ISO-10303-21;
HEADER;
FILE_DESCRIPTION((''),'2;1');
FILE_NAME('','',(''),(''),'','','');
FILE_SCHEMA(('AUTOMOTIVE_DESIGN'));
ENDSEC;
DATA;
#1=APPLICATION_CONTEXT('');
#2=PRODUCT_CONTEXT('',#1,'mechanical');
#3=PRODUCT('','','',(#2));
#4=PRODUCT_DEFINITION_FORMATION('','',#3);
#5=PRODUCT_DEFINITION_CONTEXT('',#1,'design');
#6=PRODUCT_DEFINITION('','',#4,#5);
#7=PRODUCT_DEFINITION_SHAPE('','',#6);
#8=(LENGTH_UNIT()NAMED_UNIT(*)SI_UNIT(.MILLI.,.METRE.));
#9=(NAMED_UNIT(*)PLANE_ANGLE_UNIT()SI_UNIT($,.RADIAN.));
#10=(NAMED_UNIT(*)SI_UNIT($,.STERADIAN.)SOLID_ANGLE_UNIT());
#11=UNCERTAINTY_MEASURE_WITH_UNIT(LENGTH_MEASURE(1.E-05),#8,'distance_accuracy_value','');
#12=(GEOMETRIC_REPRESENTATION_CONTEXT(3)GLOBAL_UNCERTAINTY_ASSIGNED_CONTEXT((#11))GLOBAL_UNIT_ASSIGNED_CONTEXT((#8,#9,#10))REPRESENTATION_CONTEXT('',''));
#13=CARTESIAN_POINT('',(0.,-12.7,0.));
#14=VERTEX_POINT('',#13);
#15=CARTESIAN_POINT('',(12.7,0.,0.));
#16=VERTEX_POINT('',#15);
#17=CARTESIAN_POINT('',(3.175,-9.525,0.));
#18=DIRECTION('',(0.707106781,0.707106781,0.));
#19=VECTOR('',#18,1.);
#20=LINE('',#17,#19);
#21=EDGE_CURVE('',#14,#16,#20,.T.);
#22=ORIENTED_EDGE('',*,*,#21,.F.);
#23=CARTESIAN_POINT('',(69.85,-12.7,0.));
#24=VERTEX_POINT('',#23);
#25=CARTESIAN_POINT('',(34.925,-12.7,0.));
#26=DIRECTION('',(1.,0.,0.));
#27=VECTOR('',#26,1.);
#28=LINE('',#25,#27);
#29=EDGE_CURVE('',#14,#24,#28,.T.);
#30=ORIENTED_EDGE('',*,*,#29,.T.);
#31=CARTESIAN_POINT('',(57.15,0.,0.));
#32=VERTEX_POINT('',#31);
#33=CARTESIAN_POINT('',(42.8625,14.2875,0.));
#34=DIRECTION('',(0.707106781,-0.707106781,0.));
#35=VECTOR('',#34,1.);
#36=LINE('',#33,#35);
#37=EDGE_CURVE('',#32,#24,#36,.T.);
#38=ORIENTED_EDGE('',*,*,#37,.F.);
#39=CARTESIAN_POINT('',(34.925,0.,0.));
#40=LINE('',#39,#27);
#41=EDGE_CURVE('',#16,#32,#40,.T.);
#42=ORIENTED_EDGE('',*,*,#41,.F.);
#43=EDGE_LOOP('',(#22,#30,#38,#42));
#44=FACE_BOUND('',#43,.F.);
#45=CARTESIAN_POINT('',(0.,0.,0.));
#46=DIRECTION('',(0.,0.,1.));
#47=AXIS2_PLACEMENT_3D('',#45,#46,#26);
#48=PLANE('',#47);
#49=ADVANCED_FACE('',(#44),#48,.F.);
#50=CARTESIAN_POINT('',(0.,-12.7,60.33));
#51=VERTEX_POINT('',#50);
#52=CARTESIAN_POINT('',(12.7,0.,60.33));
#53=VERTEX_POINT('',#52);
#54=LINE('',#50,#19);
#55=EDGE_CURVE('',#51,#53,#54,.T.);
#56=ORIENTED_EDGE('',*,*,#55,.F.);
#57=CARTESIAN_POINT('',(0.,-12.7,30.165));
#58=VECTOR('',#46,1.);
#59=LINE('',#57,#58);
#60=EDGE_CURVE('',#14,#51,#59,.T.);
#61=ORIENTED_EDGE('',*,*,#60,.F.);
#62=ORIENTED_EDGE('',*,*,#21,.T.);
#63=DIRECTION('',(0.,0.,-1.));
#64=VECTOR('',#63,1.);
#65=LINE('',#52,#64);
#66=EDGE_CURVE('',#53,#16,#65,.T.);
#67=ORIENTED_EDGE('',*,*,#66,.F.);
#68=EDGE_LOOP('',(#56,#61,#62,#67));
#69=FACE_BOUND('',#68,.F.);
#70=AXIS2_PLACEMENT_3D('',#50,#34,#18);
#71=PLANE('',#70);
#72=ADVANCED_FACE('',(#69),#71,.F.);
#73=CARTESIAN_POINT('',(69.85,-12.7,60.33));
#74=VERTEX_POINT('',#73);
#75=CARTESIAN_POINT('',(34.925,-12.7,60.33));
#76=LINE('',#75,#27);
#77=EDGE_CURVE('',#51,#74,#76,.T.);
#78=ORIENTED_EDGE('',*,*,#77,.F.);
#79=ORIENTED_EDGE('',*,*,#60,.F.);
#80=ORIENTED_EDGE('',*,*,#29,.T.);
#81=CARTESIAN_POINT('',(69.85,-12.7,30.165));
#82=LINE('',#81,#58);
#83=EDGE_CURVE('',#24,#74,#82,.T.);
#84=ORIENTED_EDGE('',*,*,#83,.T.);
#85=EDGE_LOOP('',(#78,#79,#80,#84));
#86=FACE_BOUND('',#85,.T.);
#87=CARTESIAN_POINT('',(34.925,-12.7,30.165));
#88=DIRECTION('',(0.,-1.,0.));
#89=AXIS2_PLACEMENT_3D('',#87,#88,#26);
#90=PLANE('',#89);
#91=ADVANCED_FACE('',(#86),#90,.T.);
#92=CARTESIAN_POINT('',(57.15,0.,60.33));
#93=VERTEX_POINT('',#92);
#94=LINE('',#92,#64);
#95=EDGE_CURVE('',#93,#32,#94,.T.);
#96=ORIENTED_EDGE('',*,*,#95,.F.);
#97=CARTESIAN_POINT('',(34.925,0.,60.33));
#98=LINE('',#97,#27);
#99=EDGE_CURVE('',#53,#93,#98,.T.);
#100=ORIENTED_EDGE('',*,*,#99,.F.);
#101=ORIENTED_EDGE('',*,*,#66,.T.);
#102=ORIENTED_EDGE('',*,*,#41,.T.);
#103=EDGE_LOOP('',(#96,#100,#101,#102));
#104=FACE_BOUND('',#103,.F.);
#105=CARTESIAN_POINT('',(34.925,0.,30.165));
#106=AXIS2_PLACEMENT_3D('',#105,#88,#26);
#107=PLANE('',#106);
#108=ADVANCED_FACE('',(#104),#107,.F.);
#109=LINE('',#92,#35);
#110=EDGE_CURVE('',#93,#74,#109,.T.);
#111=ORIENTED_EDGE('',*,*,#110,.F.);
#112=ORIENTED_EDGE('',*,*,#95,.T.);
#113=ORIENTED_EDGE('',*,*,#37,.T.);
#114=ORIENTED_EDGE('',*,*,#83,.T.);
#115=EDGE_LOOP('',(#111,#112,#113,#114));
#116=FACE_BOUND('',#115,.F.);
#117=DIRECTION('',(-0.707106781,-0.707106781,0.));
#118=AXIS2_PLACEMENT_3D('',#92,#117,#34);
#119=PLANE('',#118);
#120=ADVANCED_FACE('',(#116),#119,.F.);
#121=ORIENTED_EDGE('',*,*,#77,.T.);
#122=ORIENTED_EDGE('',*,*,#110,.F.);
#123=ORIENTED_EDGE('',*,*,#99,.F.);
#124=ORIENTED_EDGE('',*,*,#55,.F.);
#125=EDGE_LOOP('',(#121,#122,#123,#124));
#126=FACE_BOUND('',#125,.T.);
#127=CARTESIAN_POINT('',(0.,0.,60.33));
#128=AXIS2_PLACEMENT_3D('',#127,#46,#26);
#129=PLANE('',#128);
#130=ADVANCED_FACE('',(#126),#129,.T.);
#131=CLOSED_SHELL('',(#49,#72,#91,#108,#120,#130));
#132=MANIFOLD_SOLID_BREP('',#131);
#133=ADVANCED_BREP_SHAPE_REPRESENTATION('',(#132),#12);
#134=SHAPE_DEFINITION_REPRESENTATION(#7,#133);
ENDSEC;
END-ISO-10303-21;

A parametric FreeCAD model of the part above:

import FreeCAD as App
import Part
import Sketcher
Q = App.Units.Quantity

doc = App.newDocument("Part")
body = doc.addObject("PartDesign::Body", "Body")

sketch1 = body.newObject("Sketcher::SketchObject", "Sketch")
sketch1.AttachmentSupport = (doc.getObject("XZ_Plane"), [""])
sketch1.MapMode = "FlatFace"
sketch1.addGeometry(Part.LineSegment(App.Vector(0, 60, 0), App.Vector(0, 0, 0)), False)
sketch1.addGeometry(Part.LineSegment(App.Vector(0, 0, 0), App.Vector(70, 0, 0)), False)
sketch1.addGeometry(Part.LineSegment(App.Vector(70, 0, 0), App.Vector(70, 60, 0)), False)
sketch1.addGeometry(Part.LineSegment(App.Vector(70, 60, 0), App.Vector(0, 60, 0)), False)
sketch1.addConstraint(Sketcher.Constraint("Coincident", 0, 2, 1, 1))
sketch1.addConstraint(Sketcher.Constraint("Coincident", 1, 2, 2, 1))
sketch1.addConstraint(Sketcher.Constraint("Coincident", 2, 2, 3, 1))
sketch1.addConstraint(Sketcher.Constraint("Coincident", 3, 2, 0, 1))
sketch1.addConstraint(Sketcher.Constraint("Vertical", 0))
sketch1.addConstraint(Sketcher.Constraint("Horizontal", 1))
sketch1.addConstraint(Sketcher.Constraint("Vertical", 2))
sketch1.addConstraint(Sketcher.Constraint("Horizontal", 3))
sketch1.addConstraint(Sketcher.Constraint("Coincident", 0, 2, -1, 1))
sketch1.addConstraint(Sketcher.Constraint("DistanceX", 1, 1, 1, 2, Q("2.75 in")))
sketch1.addConstraint(Sketcher.Constraint("DistanceY", 0, 2, 0, 1, 60.33))
pad1 = body.newObject("PartDesign::Pad", "Pad")
pad1.Profile = sketch1
pad1.Length = Q("0.5 in")

sketch2 = body.newObject("Sketcher::SketchObject", "Sketch001")
sketch2.AttachmentSupport = (doc.getObject("XY_Plane"), [""])
sketch2.MapMode = "FlatFace"
sketch2.AttachmentOffset = App.Placement(App.Vector(0, 0, 60.33), App.Rotation())
sketch2.addGeometry(Part.LineSegment(App.Vector(13, 0, 0), App.Vector(0, 0, 0)), False)
sketch2.addGeometry(Part.LineSegment(App.Vector(0, 0, 0), App.Vector(0, -13, 0)), False)
sketch2.addGeometry(Part.LineSegment(App.Vector(0, -13, 0), App.Vector(13, 0, 0)), False)
sketch2.addGeometry(Part.LineSegment(App.Vector(70, 0, 0), App.Vector(57, 0, 0)), False)
sketch2.addGeometry(Part.LineSegment(App.Vector(57, 0, 0), App.Vector(70, -13, 0)), False)
sketch2.addGeometry(Part.LineSegment(App.Vector(70, -13, 0), App.Vector(70, 0, 0)), False)
sketch2.addConstraint(Sketcher.Constraint("Coincident", 0, 2, 1, 1))
sketch2.addConstraint(Sketcher.Constraint("Coincident", 1, 2, 2, 1))
sketch2.addConstraint(Sketcher.Constraint("Coincident", 2, 2, 0, 1))
sketch2.addConstraint(Sketcher.Constraint("Coincident", 3, 2, 4, 1))
sketch2.addConstraint(Sketcher.Constraint("Coincident", 4, 2, 5, 1))
sketch2.addConstraint(Sketcher.Constraint("Coincident", 5, 2, 3, 1))
sketch2.addConstraint(Sketcher.Constraint("Horizontal", 0))
sketch2.addConstraint(Sketcher.Constraint("Vertical", 1))
sketch2.addConstraint(Sketcher.Constraint("Horizontal", 3))
sketch2.addConstraint(Sketcher.Constraint("Vertical", 5))
sketch2.addConstraint(Sketcher.Constraint("Coincident", 0, 2, -1, 1))
sketch2.addConstraint(Sketcher.Constraint("PointOnObject", 3, 2, -1))
sketch2.addConstraint(Sketcher.Constraint("Perpendicular", 2, 4))
sketch2.addConstraint(Sketcher.Constraint("Horizontal", 1, 2, 4, 2))
sketch2.addConstraint(Sketcher.Constraint("Equal", 0, 3))
sketch2.addConstraint(Sketcher.Constraint("DistanceX", 0, 2, 0, 1, Q("0.5 in")))
sketch2.addConstraint(Sketcher.Constraint("DistanceX", -1, 1, 3, 2, Q("2.25 in")))
pocket1 = body.newObject("PartDesign::Pocket", "Pocket")
pocket1.Profile = sketch2
pocket1.Length = Q("3 in")

doc.recompute()
